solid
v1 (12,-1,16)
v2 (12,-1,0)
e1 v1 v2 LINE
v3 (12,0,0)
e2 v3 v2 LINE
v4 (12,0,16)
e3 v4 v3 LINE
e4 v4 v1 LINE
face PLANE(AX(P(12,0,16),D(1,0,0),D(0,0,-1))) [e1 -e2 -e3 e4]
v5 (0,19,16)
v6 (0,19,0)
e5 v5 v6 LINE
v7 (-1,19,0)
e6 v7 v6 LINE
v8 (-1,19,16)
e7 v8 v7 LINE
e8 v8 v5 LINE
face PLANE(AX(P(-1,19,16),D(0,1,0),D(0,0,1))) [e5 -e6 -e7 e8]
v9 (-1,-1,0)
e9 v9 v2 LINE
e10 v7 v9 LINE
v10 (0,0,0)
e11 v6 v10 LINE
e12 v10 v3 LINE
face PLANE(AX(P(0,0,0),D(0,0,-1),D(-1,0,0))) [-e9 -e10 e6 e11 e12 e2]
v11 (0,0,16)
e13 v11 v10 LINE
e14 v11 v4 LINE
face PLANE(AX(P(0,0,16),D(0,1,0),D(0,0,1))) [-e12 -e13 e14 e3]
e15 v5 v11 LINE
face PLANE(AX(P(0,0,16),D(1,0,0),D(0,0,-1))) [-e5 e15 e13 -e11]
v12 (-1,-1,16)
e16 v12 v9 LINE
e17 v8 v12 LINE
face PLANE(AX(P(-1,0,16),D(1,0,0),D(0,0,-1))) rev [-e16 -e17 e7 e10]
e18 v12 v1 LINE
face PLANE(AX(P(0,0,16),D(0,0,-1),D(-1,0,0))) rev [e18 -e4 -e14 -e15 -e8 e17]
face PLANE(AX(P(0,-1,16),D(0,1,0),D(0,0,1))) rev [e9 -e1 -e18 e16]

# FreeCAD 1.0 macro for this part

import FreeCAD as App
import Part
import Sketcher
from FreeCAD import Vector


def add_polygon(sketch, points):
    """Adds a closed chain of lines whose ends are joined by coincident constraints."""
    first, n = sketch.GeometryCount, len(points)
    for a, b in zip(points, points[1:] + points[:1]):
        sketch.addGeometry(Part.LineSegment(App.Vector(*a, 0), App.Vector(*b, 0)), False)
    for i in range(n):
        sketch.addConstraint(Sketcher.Constraint("Coincident", first + i, 2, first + (i + 1) % n, 1))

doc = App.newDocument("Part")
body = doc.addObject("PartDesign::Body", "Body")

sketch1 = body.newObject("Sketcher::SketchObject", "Sketch")
sketch1.AttachmentSupport = (doc.getObject("XY_Plane"), [""])
sketch1.MapMode = "FlatFace"
add_polygon(sketch1, [(12, 0), (0, 0), (0, 19), (-1, 19), (-1, -1), (12, -1)])
sketch1.addConstraint([
    Sketcher.Constraint("Horizontal", 0),
    Sketcher.Constraint("Vertical", 1),
    Sketcher.Constraint("Horizontal", 2),
    Sketcher.Constraint("Vertical", 3),
    Sketcher.Constraint("Horizontal", 4),
    Sketcher.Constraint("Vertical", 5),
    Sketcher.Constraint("Coincident", 0, 2, -1, 1),
    Sketcher.Constraint("Equal", 2, 5),
    Sketcher.Constraint("DistanceX", 0, 2, 0, 1, 12.0),
    Sketcher.Constraint("DistanceX", 2, 2, 2, 1, 1.0),
    Sketcher.Constraint("DistanceY", 1, 1, 1, 2, 19.0),
])
pad1 = body.newObject("PartDesign::Pad", "Pad")
pad1.Profile = sketch1
pad1.Length = 16

doc.recompute()
